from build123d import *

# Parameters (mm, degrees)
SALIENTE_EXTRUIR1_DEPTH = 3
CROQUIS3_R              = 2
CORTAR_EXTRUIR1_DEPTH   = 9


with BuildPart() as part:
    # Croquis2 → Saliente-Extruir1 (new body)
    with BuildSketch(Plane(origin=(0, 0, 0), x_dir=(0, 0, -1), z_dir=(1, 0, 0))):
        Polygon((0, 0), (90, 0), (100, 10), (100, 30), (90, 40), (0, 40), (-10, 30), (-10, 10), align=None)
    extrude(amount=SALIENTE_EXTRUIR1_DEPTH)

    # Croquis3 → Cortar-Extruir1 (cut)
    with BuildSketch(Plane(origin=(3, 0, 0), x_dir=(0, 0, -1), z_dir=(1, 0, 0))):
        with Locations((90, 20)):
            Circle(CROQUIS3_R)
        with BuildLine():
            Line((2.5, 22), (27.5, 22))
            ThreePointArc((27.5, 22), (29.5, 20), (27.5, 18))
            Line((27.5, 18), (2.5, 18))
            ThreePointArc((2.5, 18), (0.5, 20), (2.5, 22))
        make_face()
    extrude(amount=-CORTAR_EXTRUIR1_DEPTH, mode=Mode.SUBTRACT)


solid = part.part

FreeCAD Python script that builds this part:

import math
import FreeCAD as App
import Part
import Sketcher


def add_polygon(sketch, points):
    """Adds a closed chain of lines whose ends are joined by coincident constraints."""
    first, n = sketch.GeometryCount, len(points)
    for a, b in zip(points, points[1:] + points[:1]):
        sketch.addGeometry(Part.LineSegment(App.Vector(*a, 0), App.Vector(*b, 0)), False)
    for i in range(n):
        sketch.addConstraint(Sketcher.Constraint("Coincident", first + i, 2, first + (i + 1) % n, 1))

doc = App.newDocument("Part")
params = doc.addObject("Spreadsheet::Sheet", "Params")
for row, (alias, value) in enumerate([
    ("sketch1_width", "20 mm"),
    ("sketch1_height", "90 mm"),
    ("pad1_length", "3 mm"),
    ("sketch2_diameter", "4 mm"),
    ("sketch2_height", "25 mm"),
    ("pocket1_length", "9 mm"),
], start=1):
    params.set(f"A{row}", alias)
    params.set(f"B{row}", "=" + value)
    params.setAlias(f"B{row}", alias)

body = doc.addObject("PartDesign::Body", "Body")

sketch1 = body.newObject("Sketcher::SketchObject", "Sketch")
sketch1.AttachmentSupport = (doc.getObject("YZ_Plane"), [""])
sketch1.MapMode = "FlatFace"
add_polygon(sketch1, [(0, 0), (0, -90), (10, -100), (30, -100), (40, -90), (40, 0), (30, 10), (10, 10)])
sketch1.addConstraint([
    Sketcher.Constraint("Vertical", 0),
    Sketcher.Constraint("Horizontal", 2),
    Sketcher.Constraint("Vertical", 4),
    Sketcher.Constraint("Horizontal", 6),
    Sketcher.Constraint("Coincident", 7, 2, -1, 1),
    Sketcher.Constraint("PointOnObject", 4, 2, -1),
    Sketcher.Constraint("Perpendicular", 1, 3),
    Sketcher.Constraint("Perpendicular", 3, 5),
    Sketcher.Constraint("Perpendicular", 5, 7),
    Sketcher.Constraint("Horizontal", 0, 2, 3, 2),
    Sketcher.Constraint("Vertical", 2, 2, 5, 2),
    Sketcher.Constraint("Vertical", 1, 2, 6, 2),
    Sketcher.Constraint("DistanceX", 2, 1, 2, 2, 20.0),
    Sketcher.Constraint("DistanceY", 0, 2, 0, 1, 90.0),
    Sketcher.Constraint("DistanceX", -1, 1, 1, 2, 10.0),
])
sketch1.setExpression("Constraints[20]", "Params.sketch1_width")
sketch1.setExpression("Constraints[21]", "Params.sketch1_height")
pad1 = body.newObject("PartDesign::Pad", "Pad")
pad1.Profile = sketch1
pad1.setExpression("Length", "Params.pad1_length")

sketch2 = body.newObject("Sketcher::SketchObject", "Sketch001")
sketch2.AttachmentSupport = (doc.getObject("YZ_Plane"), [""])
sketch2.MapMode = "FlatFace"
sketch2.AttachmentOffset = App.Placement(App.Vector(0, 0, 3), App.Rotation())
sketch2.addGeometry([
    Part.Circle(App.Vector(20, -90, 0), App.Vector(0, 0, 1), 2),
    Part.LineSegment(App.Vector(22, -27.5, 0), App.Vector(22, -2.5, 0)),
    Part.ArcOfCircle(Part.Circle(App.Vector(20, -2.5, 0), App.Vector(0, 0, 1), 2), math.radians(0), math.radians(180)),
    Part.LineSegment(App.Vector(18, -2.5, 0), App.Vector(18, -27.5, 0)),
    Part.ArcOfCircle(Part.Circle(App.Vector(20, -27.5, 0), App.Vector(0, 0, 1), 2), math.radians(180), math.radians(360)),
], False)
sketch2.addConstraint([
    Sketcher.Constraint("Tangent", 1, 2, 2, 1),
    Sketcher.Constraint("Tangent", 2, 2, 3, 1),
    Sketcher.Constraint("Tangent", 3, 2, 4, 1),
    Sketcher.Constraint("Tangent", 4, 2, 1, 1),
    Sketcher.Constraint("Vertical", 1),
    Sketcher.Constraint("Vertical", 3),
    Sketcher.Constraint("Equal", 0, 2),
    Sketcher.Constraint("Vertical", 0, 3, 2, 3),
    Sketcher.Constraint("Diameter", 0, 4.0),
    Sketcher.Constraint("DistanceY", 1, 1, 1, 2, 25.0),
    Sketcher.Constraint("DistanceX", -1, 1, 0, 3, 20.0),
    Sketcher.Constraint("DistanceY", 0, 3, -1, 1, 90.0),
    Sketcher.Constraint("DistanceY", 2, 3, -1, 1, 2.5),
])
sketch2.setExpression("Constraints[8]", "Params.sketch2_diameter")
sketch2.setExpression("Constraints[9]", "Params.sketch2_height")
pocket1 = body.newObject("PartDesign::Pocket", "Pocket")
pocket1.Profile = sketch2
pocket1.setExpression("Length", "Params.pocket1_length")

doc.recompute()
